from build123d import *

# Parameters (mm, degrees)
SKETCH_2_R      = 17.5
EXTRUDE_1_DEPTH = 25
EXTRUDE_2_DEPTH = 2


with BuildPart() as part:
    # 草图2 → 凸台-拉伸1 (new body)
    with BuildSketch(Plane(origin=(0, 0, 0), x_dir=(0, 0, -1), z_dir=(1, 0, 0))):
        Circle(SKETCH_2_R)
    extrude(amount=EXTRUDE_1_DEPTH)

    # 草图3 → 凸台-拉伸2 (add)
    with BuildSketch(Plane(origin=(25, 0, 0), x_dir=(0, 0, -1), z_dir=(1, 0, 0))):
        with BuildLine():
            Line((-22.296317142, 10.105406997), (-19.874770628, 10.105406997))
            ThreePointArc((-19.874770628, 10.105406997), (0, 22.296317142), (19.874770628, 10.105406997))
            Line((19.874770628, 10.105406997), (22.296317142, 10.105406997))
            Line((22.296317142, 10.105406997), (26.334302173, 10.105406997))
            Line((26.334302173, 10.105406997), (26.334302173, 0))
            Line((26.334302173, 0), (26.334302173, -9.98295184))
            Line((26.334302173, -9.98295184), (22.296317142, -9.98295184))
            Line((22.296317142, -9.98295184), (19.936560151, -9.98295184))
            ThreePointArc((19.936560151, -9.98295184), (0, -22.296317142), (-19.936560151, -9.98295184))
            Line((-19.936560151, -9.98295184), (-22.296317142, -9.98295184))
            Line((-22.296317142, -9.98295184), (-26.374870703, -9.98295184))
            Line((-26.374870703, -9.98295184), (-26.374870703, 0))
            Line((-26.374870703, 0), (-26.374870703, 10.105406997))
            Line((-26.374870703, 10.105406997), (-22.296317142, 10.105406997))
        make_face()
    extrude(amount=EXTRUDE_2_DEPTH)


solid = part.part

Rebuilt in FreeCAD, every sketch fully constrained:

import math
import FreeCAD as App
import Part
import Sketcher

V = App.Vector
Q = App.Units.Quantity

doc = App.newDocument("Part")
body = doc.addObject("PartDesign::Body", "Body")

# Sketch on YZ plane
sketch1 = doc.addObject("Sketcher::SketchObject", "Sketch")
body.addObject(sketch1)
sketch1.AttachmentSupport = (doc.YZ_Plane, [""])
sketch1.MapMode = "FlatFace"
sketch1.addGeometry(Part.Circle(V(0, 0, 0), V(0, 0, 1), 17.5), False)
sketch1.addConstraint([
    Sketcher.Constraint("Coincident", 0, 3, -1, 1),
    Sketcher.Constraint("Diameter", 0, Q("35 mm")),
])
pad1 = doc.addObject("PartDesign::Pad", "Pad")
body.addObject(pad1)
pad1.Profile = sketch1
pad1.Length = 25

# Sketch on YZ plane
sketch2 = doc.addObject("Sketcher::SketchObject", "Sketch001")
body.addObject(sketch2)
sketch2.AttachmentSupport = (doc.YZ_Plane, [""])
sketch2.MapMode = "FlatFace"
sketch2.AttachmentOffset = App.Placement(V(0, 0, 25), App.Rotation())
sketch2.addGeometry([
    Part.ArcOfCircle(Part.Circle(V(0, 0, 0), V(0, 0, 1), 22.296317), math.radians(-63.048757), math.radians(63.048757)),  # 0
    Part.LineSegment(V(10.105407, 19.874771, 0), V(10.105407, 26.374871, 0)),  # 1
    Part.LineSegment(V(10.105407, 26.374871, 0), V(-9.982952, 26.374871, 0)),  # 2
    Part.LineSegment(V(-9.982952, 26.374871, 0), V(-9.982952, 19.93656, 0)),  # 3
    Part.ArcOfCircle(Part.Circle(V(0, 0, 0), V(0, 0, 1), 22.296317), math.radians(116.598773), math.radians(243.401227)),  # 4
    Part.LineSegment(V(-9.982952, -19.93656, 0), V(-9.982952, -26.334302, 0)),  # 5
    Part.LineSegment(V(-9.982952, -26.334302, 0), V(10.105407, -26.334302, 0)),  # 6
    Part.LineSegment(V(10.105407, -26.334302, 0), V(10.105407, -19.874771, 0)),  # 7
], False)
sketch2.addConstraint([
    Sketcher.Constraint("Coincident", 0, 2, 1, 1),
    Sketcher.Constraint("Coincident", 1, 2, 2, 1),
    Sketcher.Constraint("Coincident", 2, 2, 3, 1),
    Sketcher.Constraint("Coincident", 3, 2, 4, 1),
    Sketcher.Constraint("Coincident", 4, 2, 5, 1),
    Sketcher.Constraint("Coincident", 5, 2, 6, 1),
    Sketcher.Constraint("Coincident", 6, 2, 7, 1),
    Sketcher.Constraint("Coincident", 7, 2, 0, 1),
    Sketcher.Constraint("Vertical", 1),
    Sketcher.Constraint("Horizontal", 2),
    Sketcher.Constraint("Vertical", 3),
    Sketcher.Constraint("Vertical", 5),
    Sketcher.Constraint("Horizontal", 6),
    Sketcher.Constraint("Vertical", 7),
    Sketcher.Constraint("Coincident", 0, 3, -1, 1),
    Sketcher.Constraint("Coincident", 4, 3, -1, 1),
    Sketcher.Constraint("Equal", 0, 4),
    Sketcher.Constraint("Vertical", 3, 2, 4, 2),
    Sketcher.Constraint("Vertical", 1, 2, 6, 2),
    Sketcher.Constraint("DistanceY", 1, 1, 1, 2, Q("6.5001 mm")),
    Sketcher.Constraint("Radius", 0, Q("22.296317 mm")),
    Sketcher.Constraint("DistanceX", 2, 2, 2, 1, Q("20.088359 mm")),
    Sketcher.Constraint("DistanceY", 3, 2, 3, 1, Q("6.438311 mm")),
    Sketcher.Constraint("DistanceY", 7, 1, 7, 2, Q("6.459532 mm")),
])
pad2 = doc.addObject("PartDesign::Pad", "Pad001")
body.addObject(pad2)
pad2.Profile = sketch2
pad2.Length = 2

doc.recompute()
